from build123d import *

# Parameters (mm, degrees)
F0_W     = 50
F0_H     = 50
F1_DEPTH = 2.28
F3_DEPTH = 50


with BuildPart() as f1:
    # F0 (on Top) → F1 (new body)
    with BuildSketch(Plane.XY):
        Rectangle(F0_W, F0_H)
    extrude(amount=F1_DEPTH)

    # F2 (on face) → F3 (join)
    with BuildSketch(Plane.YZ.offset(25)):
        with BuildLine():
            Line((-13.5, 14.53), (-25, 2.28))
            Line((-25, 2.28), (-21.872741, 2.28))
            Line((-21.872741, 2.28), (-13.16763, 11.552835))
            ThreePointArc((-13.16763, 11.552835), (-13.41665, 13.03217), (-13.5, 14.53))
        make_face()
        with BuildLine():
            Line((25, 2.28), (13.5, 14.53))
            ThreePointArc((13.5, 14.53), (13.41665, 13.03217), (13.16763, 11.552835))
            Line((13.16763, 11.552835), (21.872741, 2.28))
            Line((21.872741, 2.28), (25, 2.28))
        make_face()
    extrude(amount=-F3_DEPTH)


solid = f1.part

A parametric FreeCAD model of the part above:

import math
import FreeCAD as App
import Part
import Sketcher

V = App.Vector

doc = App.newDocument("Part")
params = doc.addObject("Spreadsheet::Sheet", "Params")
for row, (alias, value) in enumerate([
    ("sketch1_width", "50 mm"),
    ("pad1_length", "2.28 mm"),
    ("pad2_length", "50 mm"),
], start=1):
    params.set(f"A{row}", alias)
    params.set(f"B{row}", "=" + value)
    params.setAlias(f"B{row}", alias)

body = doc.addObject("PartDesign::Body", "Body")

# Sketch on XY plane
sketch1 = body.newObject("Sketcher::SketchObject", "Sketch")
sketch1.AttachmentSupport = (doc.getObject("XY_Plane"), [""])
sketch1.MapMode = "FlatFace"
sketch1.addGeometry([
    Part.LineSegment(V(-25, 25, 0), V(-25, -25, 0)),
    Part.LineSegment(V(-25, -25, 0), V(25, -25, 0)),
    Part.LineSegment(V(25, -25, 0), V(25, 25, 0)),
    Part.LineSegment(V(25, 25, 0), V(-25, 25, 0)),
], False)
sketch1.addConstraint([
    Sketcher.Constraint("Coincident", 0, 2, 1, 1),
    Sketcher.Constraint("Coincident", 1, 2, 2, 1),
    Sketcher.Constraint("Coincident", 2, 2, 3, 1),
    Sketcher.Constraint("Coincident", 3, 2, 0, 1),
    Sketcher.Constraint("Vertical", 0),
    Sketcher.Constraint("Horizontal", 1),
    Sketcher.Constraint("Vertical", 2),
    Sketcher.Constraint("Horizontal", 3),
    Sketcher.Constraint("Symmetric", 0, 2, 2, 2, -1, 1),
    Sketcher.Constraint("Equal", 3, 0),
    Sketcher.Constraint("DistanceX", 1, 1, 1, 2, 50.0),
])
sketch1.setExpression("Constraints[10]", "Params.sketch1_width")
pad1 = body.newObject("PartDesign::Pad", "Pad")
pad1.Profile = sketch1
pad1.setExpression("Length", "Params.pad1_length")

# Sketch on YZ plane
sketch2 = body.newObject("Sketcher::SketchObject", "Sketch001")
sketch2.AttachmentSupport = (doc.getObject("YZ_Plane"), [""])
sketch2.MapMode = "FlatFace"
sketch2.AttachmentOffset = App.Placement(V(0, 0, 25), App.Rotation())
sketch2.addGeometry([
    Part.LineSegment(V(-13.5, 14.53, 0), V(-25, 2.28, 0)),  # 0
    Part.LineSegment(V(-25, 2.28, 0), V(-21.872741, 2.28, 0)),  # 1
    Part.LineSegment(V(-21.872741, 2.28, 0), V(-13.16763, 11.552835, 0)),  # 2
    Part.ArcOfCircle(Part.Circle(V(0.000022, 14.530004, 0), V(0, 0, 1), 13.500022), math.radians(-179.999983), math.radians(-167.259796)),  # 3
    Part.LineSegment(V(25, 2.28, 0), V(13.5, 14.53, 0)),  # 4
    Part.ArcOfCircle(Part.Circle(V(-0.000022, 14.530004, 0), V(0, 0, 1), 13.500022), math.radians(-12.740204), math.radians(-0.000017)),  # 5
    Part.LineSegment(V(13.16763, 11.552835, 0), V(21.872741, 2.28, 0)),  # 6
    Part.LineSegment(V(21.872741, 2.28, 0), V(25, 2.28, 0)),  # 7
], False)
sketch2.addConstraint([
    Sketcher.Constraint("Coincident", 0, 2, 1, 1),
    Sketcher.Constraint("Coincident", 1, 2, 2, 1),
    Sketcher.Constraint("Coincident", 2, 2, 3, 2),
    Sketcher.Constraint("Coincident", 3, 1, 0, 1),
    Sketcher.Constraint("Coincident", 4, 2, 5, 2),
    Sketcher.Constraint("Coincident", 5, 1, 6, 1),
    Sketcher.Constraint("Coincident", 6, 2, 7, 1),
    Sketcher.Constraint("Coincident", 7, 2, 4, 1),
    Sketcher.Constraint("Horizontal", 1),
    Sketcher.Constraint("Horizontal", 7),
    Sketcher.Constraint("Equal", 3, 5),
    Sketcher.Constraint("Symmetric", 3, 3, 5, 3, -2),
    Sketcher.Constraint("Symmetric", 1, 2, 6, 2, -2),
    Sketcher.Constraint("Parallel", 0, 2),
    Sketcher.Constraint("Parallel", 4, 6),
    Sketcher.Constraint("Horizontal", 3, 1, 4, 2),
    Sketcher.Constraint("Horizontal", 2, 2, 5, 1),
    Sketcher.Constraint("DistanceX", 0, 2, -1, 1, 25.0),
    Sketcher.Constraint("DistanceX", 3, 1, 4, 2, 27.0),
    Sketcher.Constraint("DistanceY", -1, 1, 0, 2, 2.28),
    Sketcher.Constraint("DistanceY", -1, 1, 3, 1, 14.53),
    Sketcher.Constraint("Radius", 3, 13.500022),
    Sketcher.Constraint("DistanceX", 1, 1, 1, 2, 3.127259),
    Sketcher.Constraint("DistanceX", 2, 2, -1, 1, 13.16763),
])
pad2 = body.newObject("PartDesign::Pad", "Pad001")
pad2.Profile = sketch2
pad2.setExpression("Length", "Params.pad2_length")
pad2.Reversed = True

doc.recompute()
